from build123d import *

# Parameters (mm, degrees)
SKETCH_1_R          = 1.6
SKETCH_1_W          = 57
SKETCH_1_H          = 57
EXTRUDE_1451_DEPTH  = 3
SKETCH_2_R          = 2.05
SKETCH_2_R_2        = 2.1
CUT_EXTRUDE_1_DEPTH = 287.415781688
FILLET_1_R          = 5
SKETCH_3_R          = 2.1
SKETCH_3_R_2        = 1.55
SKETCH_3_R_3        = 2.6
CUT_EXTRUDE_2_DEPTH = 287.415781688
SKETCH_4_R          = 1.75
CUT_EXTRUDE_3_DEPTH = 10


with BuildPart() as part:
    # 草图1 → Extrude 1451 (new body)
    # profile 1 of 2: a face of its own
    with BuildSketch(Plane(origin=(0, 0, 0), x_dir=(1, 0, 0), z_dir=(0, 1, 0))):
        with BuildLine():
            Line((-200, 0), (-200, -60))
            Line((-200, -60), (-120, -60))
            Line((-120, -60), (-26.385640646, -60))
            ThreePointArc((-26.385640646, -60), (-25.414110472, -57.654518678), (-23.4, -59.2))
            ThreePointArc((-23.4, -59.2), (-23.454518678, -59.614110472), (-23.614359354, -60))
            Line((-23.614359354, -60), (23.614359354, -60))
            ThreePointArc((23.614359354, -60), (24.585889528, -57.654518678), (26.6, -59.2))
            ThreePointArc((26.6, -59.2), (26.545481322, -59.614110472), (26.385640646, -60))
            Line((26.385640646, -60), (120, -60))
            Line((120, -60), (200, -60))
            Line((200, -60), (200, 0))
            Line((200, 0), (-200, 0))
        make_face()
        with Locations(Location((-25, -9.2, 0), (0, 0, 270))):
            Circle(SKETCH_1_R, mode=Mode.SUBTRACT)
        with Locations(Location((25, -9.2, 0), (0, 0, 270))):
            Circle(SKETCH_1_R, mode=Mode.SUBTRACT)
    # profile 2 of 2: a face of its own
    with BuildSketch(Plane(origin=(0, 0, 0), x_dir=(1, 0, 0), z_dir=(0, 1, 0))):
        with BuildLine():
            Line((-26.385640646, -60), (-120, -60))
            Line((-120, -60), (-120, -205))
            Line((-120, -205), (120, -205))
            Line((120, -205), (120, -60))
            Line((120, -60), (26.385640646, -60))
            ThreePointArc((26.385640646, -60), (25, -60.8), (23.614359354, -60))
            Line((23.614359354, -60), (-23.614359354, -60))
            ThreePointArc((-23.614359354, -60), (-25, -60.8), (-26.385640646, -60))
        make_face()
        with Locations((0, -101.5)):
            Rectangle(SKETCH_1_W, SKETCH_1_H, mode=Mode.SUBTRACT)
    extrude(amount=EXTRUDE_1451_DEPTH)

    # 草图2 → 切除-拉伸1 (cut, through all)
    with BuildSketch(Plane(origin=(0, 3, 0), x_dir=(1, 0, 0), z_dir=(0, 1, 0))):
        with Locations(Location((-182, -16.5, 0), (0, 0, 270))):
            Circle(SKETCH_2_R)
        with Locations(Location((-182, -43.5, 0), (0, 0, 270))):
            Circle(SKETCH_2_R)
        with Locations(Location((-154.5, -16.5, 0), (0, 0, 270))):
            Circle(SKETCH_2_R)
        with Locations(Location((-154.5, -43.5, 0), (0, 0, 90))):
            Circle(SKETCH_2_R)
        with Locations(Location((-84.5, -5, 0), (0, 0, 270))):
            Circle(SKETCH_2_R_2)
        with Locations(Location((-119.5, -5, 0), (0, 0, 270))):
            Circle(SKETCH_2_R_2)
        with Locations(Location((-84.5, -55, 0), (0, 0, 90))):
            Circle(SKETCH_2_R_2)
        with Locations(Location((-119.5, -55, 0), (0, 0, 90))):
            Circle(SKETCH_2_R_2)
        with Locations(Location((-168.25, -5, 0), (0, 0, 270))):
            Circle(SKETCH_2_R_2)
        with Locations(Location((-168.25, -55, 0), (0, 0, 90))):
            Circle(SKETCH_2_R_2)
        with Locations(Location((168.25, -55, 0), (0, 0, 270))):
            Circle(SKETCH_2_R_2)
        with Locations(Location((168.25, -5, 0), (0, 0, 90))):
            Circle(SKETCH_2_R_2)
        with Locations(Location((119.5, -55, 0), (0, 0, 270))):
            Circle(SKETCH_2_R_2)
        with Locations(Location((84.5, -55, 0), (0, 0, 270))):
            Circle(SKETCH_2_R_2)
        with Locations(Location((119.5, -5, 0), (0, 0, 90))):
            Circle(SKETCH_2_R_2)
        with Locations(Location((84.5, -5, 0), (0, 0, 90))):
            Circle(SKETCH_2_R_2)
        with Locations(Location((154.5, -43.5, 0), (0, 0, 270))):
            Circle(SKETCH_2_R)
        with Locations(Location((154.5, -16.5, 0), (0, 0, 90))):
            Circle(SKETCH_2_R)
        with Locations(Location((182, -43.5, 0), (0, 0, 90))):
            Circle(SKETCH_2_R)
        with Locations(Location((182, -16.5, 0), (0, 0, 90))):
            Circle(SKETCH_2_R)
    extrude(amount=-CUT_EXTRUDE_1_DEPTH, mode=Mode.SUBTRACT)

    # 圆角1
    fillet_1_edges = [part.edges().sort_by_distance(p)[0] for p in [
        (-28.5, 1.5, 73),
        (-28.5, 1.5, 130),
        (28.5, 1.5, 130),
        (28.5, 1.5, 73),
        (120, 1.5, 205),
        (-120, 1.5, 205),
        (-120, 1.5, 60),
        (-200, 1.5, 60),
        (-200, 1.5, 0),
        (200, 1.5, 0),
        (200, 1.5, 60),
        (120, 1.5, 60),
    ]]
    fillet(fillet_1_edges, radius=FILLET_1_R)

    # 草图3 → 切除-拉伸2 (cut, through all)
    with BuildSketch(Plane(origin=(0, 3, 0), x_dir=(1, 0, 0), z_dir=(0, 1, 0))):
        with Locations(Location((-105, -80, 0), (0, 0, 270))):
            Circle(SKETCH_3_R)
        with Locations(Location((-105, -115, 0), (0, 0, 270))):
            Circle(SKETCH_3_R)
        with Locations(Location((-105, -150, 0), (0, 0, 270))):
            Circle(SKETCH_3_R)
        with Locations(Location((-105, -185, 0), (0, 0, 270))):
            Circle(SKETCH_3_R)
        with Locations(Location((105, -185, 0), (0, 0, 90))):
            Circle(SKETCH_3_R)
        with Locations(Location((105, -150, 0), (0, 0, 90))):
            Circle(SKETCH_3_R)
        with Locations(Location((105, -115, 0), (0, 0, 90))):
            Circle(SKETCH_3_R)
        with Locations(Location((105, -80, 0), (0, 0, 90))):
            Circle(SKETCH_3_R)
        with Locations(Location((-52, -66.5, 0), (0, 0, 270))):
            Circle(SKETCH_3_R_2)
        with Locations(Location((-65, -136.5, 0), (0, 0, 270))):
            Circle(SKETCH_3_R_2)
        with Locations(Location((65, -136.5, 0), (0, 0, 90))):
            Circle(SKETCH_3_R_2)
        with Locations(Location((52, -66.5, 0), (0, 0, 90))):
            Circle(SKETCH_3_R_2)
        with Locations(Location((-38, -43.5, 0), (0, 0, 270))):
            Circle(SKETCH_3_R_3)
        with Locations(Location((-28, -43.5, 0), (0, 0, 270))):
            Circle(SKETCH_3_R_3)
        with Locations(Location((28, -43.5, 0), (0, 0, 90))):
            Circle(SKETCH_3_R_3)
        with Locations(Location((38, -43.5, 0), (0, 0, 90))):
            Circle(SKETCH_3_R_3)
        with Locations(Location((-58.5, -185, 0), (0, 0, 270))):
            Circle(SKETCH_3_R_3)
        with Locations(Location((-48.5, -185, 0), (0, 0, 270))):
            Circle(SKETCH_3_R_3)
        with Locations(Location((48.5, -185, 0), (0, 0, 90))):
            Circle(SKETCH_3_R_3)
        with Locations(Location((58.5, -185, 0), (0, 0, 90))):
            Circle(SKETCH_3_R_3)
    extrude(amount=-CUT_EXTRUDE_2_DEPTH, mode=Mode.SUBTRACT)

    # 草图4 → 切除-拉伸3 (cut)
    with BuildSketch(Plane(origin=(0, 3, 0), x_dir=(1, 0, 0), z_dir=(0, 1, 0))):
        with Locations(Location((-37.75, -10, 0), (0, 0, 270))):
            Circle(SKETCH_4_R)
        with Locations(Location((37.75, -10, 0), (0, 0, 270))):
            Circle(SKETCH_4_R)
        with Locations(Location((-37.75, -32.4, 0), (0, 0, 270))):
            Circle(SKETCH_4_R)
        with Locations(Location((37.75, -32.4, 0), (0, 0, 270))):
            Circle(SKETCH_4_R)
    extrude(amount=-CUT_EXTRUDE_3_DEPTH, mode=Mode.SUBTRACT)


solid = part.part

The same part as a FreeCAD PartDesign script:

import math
import FreeCAD as App
import Part
import Sketcher
from FreeCAD import Vector
Q = App.Units.Quantity


def edges_at(feature, points):
    """Names of the edges that pass closest to the given points."""
    edges = feature.Shape.Edges
    near = lambda p: min(range(len(edges)), key=lambda i: edges[i].distToShape(Part.Vertex(*p))[0])
    return sorted({f"Edge{near(p) + 1}" for p in points})


def add_polygon(sketch, points):
    """Adds a closed chain of lines whose ends are joined by coincident constraints."""
    first, n = sketch.GeometryCount, len(points)
    for a, b in zip(points, points[1:] + points[:1]):
        sketch.addGeometry(Part.LineSegment(App.Vector(*a, 0), App.Vector(*b, 0)), False)
    for i in range(n):
        sketch.addConstraint(Sketcher.Constraint("Coincident", first + i, 2, first + (i + 1) % n, 1))

doc = App.newDocument("Part")
body = doc.addObject("PartDesign::Body", "Body")

# Sketch on XZ plane
sketch1 = body.newObject("Sketcher::SketchObject", "Sketch")
sketch1.AttachmentSupport = (doc.getObject("XZ_Plane"), [""])
sketch1.MapMode = "FlatFace"
add_polygon(sketch1, [(-200, 0), (-200, 60), (-120, 60), (-120, 205), (120, 205), (120, 60), (200, 60), (200, 0)])  # lines 0-7
sketch1.addGeometry(Part.ArcOfCircle(Part.Circle(Vector(-25, 59.2, 0), Vector(0, 0, 1), 1.6), math.radians(150), math.radians(360)), False)  # 8
sketch1.addGeometry(Part.ArcOfCircle(Part.Circle(Vector(-25, 59.2, 0), Vector(0, 0, 1), 1.6), math.radians(0), math.radians(30)), False)  # 9
sketch1.addGeometry(Part.ArcOfCircle(Part.Circle(Vector(-25, 59.2, 0), Vector(0, 0, 1), 1.6), math.radians(30), math.radians(150)), False)  # 10
sketch1.addGeometry(Part.ArcOfCircle(Part.Circle(Vector(25, 59.2, 0), Vector(0, 0, 1), 1.6), math.radians(0), math.radians(30)), False)  # 11
sketch1.addGeometry(Part.ArcOfCircle(Part.Circle(Vector(25, 59.2, 0), Vector(0, 0, 1), 1.6), math.radians(30), math.radians(150)), False)  # 12
sketch1.addGeometry(Part.ArcOfCircle(Part.Circle(Vector(25, 59.2, 0), Vector(0, 0, 1), 1.6), math.radians(150), math.radians(360)), False)  # 13
sketch1.addGeometry(Part.Circle(Vector(-25, 9.2, 0), Vector(0, 0, 1), 1.6), False)  # 14
sketch1.addGeometry(Part.Circle(Vector(25, 9.2, 0), Vector(0, 0, 1), 1.6), False)  # 15
add_polygon(sketch1, [(-28.5, 130), (-28.5, 73), (28.5, 73), (28.5, 130)])  # lines 16-19
sketch1.addConstraint([
    Sketcher.Constraint("Tangent", 8, 2, 9, 1),
    Sketcher.Constraint("Tangent", 9, 2, 10, 1),
    Sketcher.Constraint("Tangent", 10, 2, 8, 1),
    Sketcher.Constraint("Tangent", 11, 2, 12, 1),
    Sketcher.Constraint("Tangent", 12, 2, 13, 1),
    Sketcher.Constraint("Tangent", 13, 2, 11, 1),
    Sketcher.Constraint("Vertical", 0),
    Sketcher.Constraint("Horizontal", 1),
    Sketcher.Constraint("Vertical", 2),
    Sketcher.Constraint("Horizontal", 3),
    Sketcher.Constraint("Vertical", 4),
    Sketcher.Constraint("Horizontal", 5),
    Sketcher.Constraint("Vertical", 6),
    Sketcher.Constraint("Horizontal", 7),
    Sketcher.Constraint("Vertical", 16),
    Sketcher.Constraint("Horizontal", 17),
    Sketcher.Constraint("Vertical", 18),
    Sketcher.Constraint("Horizontal", 19),
    Sketcher.Constraint("Equal", 10, 11),
    Sketcher.Constraint("Equal", 13, 14),
    Sketcher.Constraint("Equal", 14, 15),
    Sketcher.Constraint("Symmetric", 6, 2, 7, 2, -1, 1),
    Sketcher.Constraint("Symmetric", 8, 3, 11, 3, -2),
    Sketcher.Constraint("Symmetric", 14, 3, 15, 3, -2),
    Sketcher.Constraint("Symmetric", 1, 2, 4, 2, -2),
    Sketcher.Constraint("Horizontal", 13, 3, 8, 2),
    Sketcher.Constraint("Horizontal", 5, 2, 9, 2),
    Sketcher.Constraint("Horizontal", 9, 2, 10, 2),
    Sketcher.Constraint("Horizontal", 10, 2, 11, 2),
    Sketcher.Constraint("Horizontal", 11, 2, 12, 2),
    Sketcher.Constraint("Horizontal", 8, 2, 13, 2),
    Sketcher.Constraint("Vertical", 10, 3, 14, 3),
    Sketcher.Constraint("Equal", 19, 16),
    Sketcher.Constraint("Diameter", 14, Q("3.2 mm")),
    Sketcher.Constraint("DistanceX", 1, 1, 1, 2, Q("80 mm")),
    Sketcher.Constraint("DistanceX", 3, 1, 3, 2, Q("240 mm")),
    Sketcher.Constraint("DistanceX", 17, 1, 17, 2, Q("57 mm")),
    Sketcher.Constraint("DistanceY", 0, 1, 0, 2, Q("60 mm")),
    Sketcher.Constraint("DistanceY", 2, 1, 2, 2, Q("145 mm")),
    Sketcher.Constraint("DistanceX", 8, 3, -1, 1, Q("25 mm")),
    Sketcher.Constraint("DistanceY", -1, 1, 16, 2, Q("73 mm")),
    Sketcher.Constraint("DistanceY", 14, 3, 9, 3, Q("50 mm")),
    Sketcher.Constraint("DistanceY", -1, 1, 8, 3, Q("59.2 mm")),
    Sketcher.Constraint("DistanceX", 16, 2, -1, 1, Q("28.5 mm")),
])
pad1 = body.newObject("PartDesign::Pad", "Pad")
pad1.Profile = sketch1
pad1.Length = 3
pad1.Reversed = True

# Sketch on XZ plane
sketch2 = body.newObject("Sketcher::SketchObject", "Sketch001")
sketch2.AttachmentSupport = (doc.getObject("XZ_Plane"), [""])
sketch2.MapMode = "FlatFace"
sketch2.AttachmentOffset = App.Placement(Vector(0, 0, -3), App.Rotation())
sketch2.addGeometry([
    Part.Circle(Vector(-182, 16.5, 0), Vector(0, 0, 1), 2.05),  # 0
    Part.Circle(Vector(-182, 43.5, 0), Vector(0, 0, 1), 2.05),  # 1
    Part.Circle(Vector(-154.5, 16.5, 0), Vector(0, 0, 1), 2.05),  # 2
    Part.Circle(Vector(-154.5, 43.5, 0), Vector(0, 0, 1), 2.05),  # 3
    Part.Circle(Vector(-84.5, 5, 0), Vector(0, 0, 1), 2.1),  # 4
    Part.Circle(Vector(-119.5, 5, 0), Vector(0, 0, 1), 2.1),  # 5
    Part.Circle(Vector(-84.5, 55, 0), Vector(0, 0, 1), 2.1),  # 6
    Part.Circle(Vector(-119.5, 55, 0), Vector(0, 0, 1), 2.1),  # 7
    Part.Circle(Vector(-168.25, 5, 0), Vector(0, 0, 1), 2.1),  # 8
    Part.Circle(Vector(-168.25, 55, 0), Vector(0, 0, 1), 2.1),  # 9
    Part.Circle(Vector(168.25, 55, 0), Vector(0, 0, 1), 2.1),  # 10
    Part.Circle(Vector(168.25, 5, 0), Vector(0, 0, 1), 2.1),  # 11
    Part.Circle(Vector(119.5, 55, 0), Vector(0, 0, 1), 2.1),  # 12
    Part.Circle(Vector(84.5, 55, 0), Vector(0, 0, 1), 2.1),  # 13
    Part.Circle(Vector(119.5, 5, 0), Vector(0, 0, 1), 2.1),  # 14
    Part.Circle(Vector(84.5, 5, 0), Vector(0, 0, 1), 2.1),  # 15
    Part.Circle(Vector(154.5, 43.5, 0), Vector(0, 0, 1), 2.05),  # 16
    Part.Circle(Vector(154.5, 16.5, 0), Vector(0, 0, 1), 2.05),  # 17
    Part.Circle(Vector(182, 43.5, 0), Vector(0, 0, 1), 2.05),  # 18
    Part.Circle(Vector(182, 16.5, 0), Vector(0, 0, 1), 2.05),  # 19
], False)
sketch2.addConstraint([
    Sketcher.Constraint("Equal", 0, 1),
    Sketcher.Constraint("Equal", 1, 2),
    Sketcher.Constraint("Equal", 2, 3),
    Sketcher.Constraint("Equal", 4, 5),
    Sketcher.Constraint("Equal", 5, 6),
    Sketcher.Constraint("Equal", 6, 7),
    Sketcher.Constraint("Equal", 7, 8),
    Sketcher.Constraint("Equal", 8, 9),
    Sketcher.Constraint("Equal", 9, 10),
    Sketcher.Constraint("Equal", 10, 11),
    Sketcher.Constraint("Equal", 11, 12),
    Sketcher.Constraint("Equal", 12, 13),
    Sketcher.Constraint("Equal", 13, 14),
    Sketcher.Constraint("Equal", 14, 15),
    Sketcher.Constraint("Equal", 3, 16),
    Sketcher.Constraint("Equal", 16, 17),
    Sketcher.Constraint("Equal", 17, 18),
    Sketcher.Constraint("Equal", 18, 19),
    Sketcher.Constraint("Symmetric", 9, 3, 10, 3, -2),
    Sketcher.Constraint("Symmetric", 8, 3, 11, 3, -2),
    Sketcher.Constraint("Symmetric", 7, 3, 12, 3, -2),
    Sketcher.Constraint("Symmetric", 6, 3, 13, 3, -2),
    Sketcher.Constraint("Symmetric", 5, 3, 14, 3, -2),
    Sketcher.Constraint("Symmetric", 4, 3, 15, 3, -2),
    Sketcher.Constraint("Symmetric", 3, 3, 16, 3, -2),
    Sketcher.Constraint("Symmetric", 2, 3, 17, 3, -2),
    Sketcher.Constraint("Symmetric", 1, 3, 18, 3, -2),
    Sketcher.Constraint("Symmetric", 0, 3, 19, 3, -2),
    Sketcher.Constraint("Horizontal", 0, 3, 2, 3),
    Sketcher.Constraint("Horizontal", 1, 3, 3, 3),
    Sketcher.Constraint("Horizontal", 4, 3, 5, 3),
    Sketcher.Constraint("Horizontal", 6, 3, 7, 3),
    Sketcher.Constraint("Horizontal", 5, 3, 8, 3),
    Sketcher.Constraint("Horizontal", 7, 3, 9, 3),
    Sketcher.Constraint("Vertical", 0, 3, 1, 3),
    Sketcher.Constraint("Vertical", 2, 3, 3, 3),
    Sketcher.Constraint("Vertical", 4, 3, 6, 3),
    Sketcher.Constraint("Vertical", 5, 3, 7, 3),
    Sketcher.Constraint("Vertical", 8, 3, 9, 3),
    Sketcher.Constraint("Diameter", 0, Q("4.1 mm")),
    Sketcher.Constraint("Diameter", 4, Q("4.2 mm")),
    Sketcher.Constraint("DistanceX", 0, 3, -1, 1, Q("182 mm")),
    Sketcher.Constraint("DistanceY", -1, 1, 4, 3, Q("5 mm")),
    Sketcher.Constraint("DistanceY", -1, 1, 6, 3, Q("55 mm")),
    Sketcher.Constraint("DistanceY", 0, 3, 1, 3, Q("27 mm")),
    Sketcher.Constraint("DistanceX", 2, 3, 4, 3, Q("70 mm")),
    Sketcher.Constraint("DistanceX", 5, 3, 4, 3, Q("35 mm")),
    Sketcher.Constraint("DistanceX", 6, 3, 12, 3, Q("204 mm")),
    Sketcher.Constraint("DistanceY", -1, 1, 0, 3, Q("16.5 mm")),
    Sketcher.Constraint("DistanceX", 8, 3, -1, 1, Q("168.25 mm")),
])
pocket1 = body.newObject("PartDesign::Pocket", "Pocket")
pocket1.Profile = sketch2
pocket1.Type = "ThroughAll"
pocket1.Reversed = True
doc.recompute()

fillet = body.newObject("PartDesign::Fillet", "Fillet")
fillet.Base = (pocket1, edges_at(pocket1, [
    (-28.5, 1.5, 73),
    (-28.5, 1.5, 130),
    (28.5, 1.5, 130),
    (28.5, 1.5, 73),
    (120, 1.5, 205),
    (-120, 1.5, 205),
    (-120, 1.5, 60),
    (-200, 1.5, 60),
    (-200, 1.5, 0),
    (200, 1.5, 0),
    (200, 1.5, 60),
    (120, 1.5, 60),
]))
fillet.Radius = 5

# Sketch on XZ plane
sketch3 = body.newObject("Sketcher::SketchObject", "Sketch002")
sketch3.AttachmentSupport = (doc.getObject("XZ_Plane"), [""])
sketch3.MapMode = "FlatFace"
sketch3.AttachmentOffset = App.Placement(Vector(0, 0, -3), App.Rotation())
sketch3.addGeometry([
    Part.Circle(Vector(-105, 80, 0), Vector(0, 0, 1), 2.1),  # 0
    Part.Circle(Vector(-105, 115, 0), Vector(0, 0, 1), 2.1),  # 1
    Part.Circle(Vector(-105, 150, 0), Vector(0, 0, 1), 2.1),  # 2
    Part.Circle(Vector(-105, 185, 0), Vector(0, 0, 1), 2.1),  # 3
    Part.Circle(Vector(105, 185, 0), Vector(0, 0, 1), 2.1),  # 4
    Part.Circle(Vector(105, 150, 0), Vector(0, 0, 1), 2.1),  # 5
    Part.Circle(Vector(105, 115, 0), Vector(0, 0, 1), 2.1),  # 6
    Part.Circle(Vector(105, 80, 0), Vector(0, 0, 1), 2.1),  # 7
    Part.Circle(Vector(-52, 66.5, 0), Vector(0, 0, 1), 1.55),  # 8
    Part.Circle(Vector(-65, 136.5, 0), Vector(0, 0, 1), 1.55),  # 9
    Part.Circle(Vector(65, 136.5, 0), Vector(0, 0, 1), 1.55),  # 10
    Part.Circle(Vector(52, 66.5, 0), Vector(0, 0, 1), 1.55),  # 11
    Part.Circle(Vector(-38, 43.5, 0), Vector(0, 0, 1), 2.6),  # 12
    Part.Circle(Vector(-28, 43.5, 0), Vector(0, 0, 1), 2.6),  # 13
    Part.Circle(Vector(28, 43.5, 0), Vector(0, 0, 1), 2.6),  # 14
    Part.Circle(Vector(38, 43.5, 0), Vector(0, 0, 1), 2.6),  # 15
    Part.Circle(Vector(-58.5, 185, 0), Vector(0, 0, 1), 2.6),  # 16
    Part.Circle(Vector(-48.5, 185, 0), Vector(0, 0, 1), 2.6),  # 17
    Part.Circle(Vector(48.5, 185, 0), Vector(0, 0, 1), 2.6),  # 18
    Part.Circle(Vector(58.5, 185, 0), Vector(0, 0, 1), 2.6),  # 19
], False)
sketch3.addConstraint([
    Sketcher.Constraint("Equal", 0, 1),
    Sketcher.Constraint("Equal", 1, 2),
    Sketcher.Constraint("Equal", 2, 3),
    Sketcher.Constraint("Equal", 3, 4),
    Sketcher.Constraint("Equal", 4, 5),
    Sketcher.Constraint("Equal", 5, 6),
    Sketcher.Constraint("Equal", 6, 7),
    Sketcher.Constraint("Equal", 8, 9),
    Sketcher.Constraint("Equal", 9, 10),
    Sketcher.Constraint("Equal", 10, 11),
    Sketcher.Constraint("Equal", 12, 13),
    Sketcher.Constraint("Equal", 13, 14),
    Sketcher.Constraint("Equal", 14, 15),
    Sketcher.Constraint("Equal", 15, 16),
    Sketcher.Constraint("Equal", 16, 17),
    Sketcher.Constraint("Equal", 17, 18),
    Sketcher.Constraint("Equal", 18, 19),
    Sketcher.Constraint("Symmetric", 3, 3, 4, 3, -2),
    Sketcher.Constraint("Symmetric", 2, 3, 5, 3, -2),
    Sketcher.Constraint("Symmetric", 1, 3, 6, 3, -2),
    Sketcher.Constraint("Symmetric", 0, 3, 7, 3, -2),
    Sketcher.Constraint("Symmetric", 9, 3, 10, 3, -2),
    Sketcher.Constraint("Symmetric", 8, 3, 11, 3, -2),
    Sketcher.Constraint("Symmetric", 13, 3, 14, 3, -2),
    Sketcher.Constraint("Symmetric", 12, 3, 15, 3, -2),
    Sketcher.Constraint("Symmetric", 17, 3, 18, 3, -2),
    Sketcher.Constraint("Symmetric", 16, 3, 19, 3, -2),
    Sketcher.Constraint("Horizontal", 12, 3, 13, 3),
    Sketcher.Constraint("Horizontal", 4, 3, 16, 3),
    Sketcher.Constraint("Horizontal", 16, 3, 17, 3),
    Sketcher.Constraint("Vertical", 0, 3, 1, 3),
    Sketcher.Constraint("Vertical", 1, 3, 2, 3),
    Sketcher.Constraint("Vertical", 2, 3, 3, 3),
    Sketcher.Constraint("Diameter", 0, Q("4.2 mm")),
    Sketcher.Constraint("Diameter", 8, Q("3.1 mm")),
    Sketcher.Constraint("Diameter", 12, Q("5.2 mm")),
    Sketcher.Constraint("DistanceX", 0, 3, -1, 1, Q("105 mm")),
    Sketcher.Constraint("DistanceY", -1, 1, 0, 3, Q("80 mm")),
    Sketcher.Constraint("DistanceY", -1, 1, 1, 3, Q("115 mm")),
    Sketcher.Constraint("DistanceY", -1, 1, 2, 3, Q("150 mm")),
    Sketcher.Constraint("DistanceY", -1, 1, 3, 3, Q("185 mm")),
    Sketcher.Constraint("DistanceX", 8, 3, -1, 1, Q("52 mm")),
    Sketcher.Constraint("DistanceX", 9, 3, -1, 1, Q("65 mm")),
    Sketcher.Constraint("DistanceX", 12, 3, -1, 1, Q("38 mm")),
    Sketcher.Constraint("DistanceX", 13, 3, -1, 1, Q("28 mm")),
    Sketcher.Constraint("DistanceY", 8, 3, 9, 3, Q("70 mm")),
    Sketcher.Constraint("DistanceY", 12, 3, 8, 3, Q("23 mm")),
    Sketcher.Constraint("DistanceX", 16, 3, 17, 3, Q("10 mm")),
    Sketcher.Constraint("DistanceX", 17, 3, 18, 3, Q("97 mm")),
    Sketcher.Constraint("DistanceY", -1, 1, 8, 3, Q("66.5 mm")),
])
pocket2 = body.newObject("PartDesign::Pocket", "Pocket001")
pocket2.Profile = sketch3
pocket2.Type = "ThroughAll"
pocket2.Reversed = True

# Sketch on XZ plane
sketch4 = body.newObject("Sketcher::SketchObject", "Sketch003")
sketch4.AttachmentSupport = (doc.getObject("XZ_Plane"), [""])
sketch4.MapMode = "FlatFace"
sketch4.AttachmentOffset = App.Placement(Vector(0, 0, -3), App.Rotation())
sketch4.addGeometry([
    Part.Circle(Vector(-37.75, 10, 0), Vector(0, 0, 1), 1.75),
    Part.Circle(Vector(37.75, 10, 0), Vector(0, 0, 1), 1.75),
    Part.Circle(Vector(-37.75, 32.4, 0), Vector(0, 0, 1), 1.75),
    Part.Circle(Vector(37.75, 32.4, 0), Vector(0, 0, 1), 1.75),
], False)
sketch4.addConstraint([
    Sketcher.Constraint("Equal", 0, 1),
    Sketcher.Constraint("Equal", 1, 2),
    Sketcher.Constraint("Equal", 2, 3),
    Sketcher.Constraint("Symmetric", 0, 3, 1, 3, -2),
    Sketcher.Constraint("Symmetric", 2, 3, 3, 3, -2),
    Sketcher.Constraint("Vertical", 0, 3, 2, 3),
    Sketcher.Constraint("Diameter", 0, Q("3.5 mm")),
    Sketcher.Constraint("DistanceY", -1, 1, 0, 3, Q("10 mm")),
    Sketcher.Constraint("DistanceY", -1, 1, 2, 3, Q("32.4 mm")),
    Sketcher.Constraint("DistanceX", 0, 3, 1, 3, Q("75.5 mm")),
])
pocket3 = body.newObject("PartDesign::Pocket", "Pocket002")
pocket3.Profile = sketch4
pocket3.Length = 10
pocket3.Reversed = True

doc.recompute()
